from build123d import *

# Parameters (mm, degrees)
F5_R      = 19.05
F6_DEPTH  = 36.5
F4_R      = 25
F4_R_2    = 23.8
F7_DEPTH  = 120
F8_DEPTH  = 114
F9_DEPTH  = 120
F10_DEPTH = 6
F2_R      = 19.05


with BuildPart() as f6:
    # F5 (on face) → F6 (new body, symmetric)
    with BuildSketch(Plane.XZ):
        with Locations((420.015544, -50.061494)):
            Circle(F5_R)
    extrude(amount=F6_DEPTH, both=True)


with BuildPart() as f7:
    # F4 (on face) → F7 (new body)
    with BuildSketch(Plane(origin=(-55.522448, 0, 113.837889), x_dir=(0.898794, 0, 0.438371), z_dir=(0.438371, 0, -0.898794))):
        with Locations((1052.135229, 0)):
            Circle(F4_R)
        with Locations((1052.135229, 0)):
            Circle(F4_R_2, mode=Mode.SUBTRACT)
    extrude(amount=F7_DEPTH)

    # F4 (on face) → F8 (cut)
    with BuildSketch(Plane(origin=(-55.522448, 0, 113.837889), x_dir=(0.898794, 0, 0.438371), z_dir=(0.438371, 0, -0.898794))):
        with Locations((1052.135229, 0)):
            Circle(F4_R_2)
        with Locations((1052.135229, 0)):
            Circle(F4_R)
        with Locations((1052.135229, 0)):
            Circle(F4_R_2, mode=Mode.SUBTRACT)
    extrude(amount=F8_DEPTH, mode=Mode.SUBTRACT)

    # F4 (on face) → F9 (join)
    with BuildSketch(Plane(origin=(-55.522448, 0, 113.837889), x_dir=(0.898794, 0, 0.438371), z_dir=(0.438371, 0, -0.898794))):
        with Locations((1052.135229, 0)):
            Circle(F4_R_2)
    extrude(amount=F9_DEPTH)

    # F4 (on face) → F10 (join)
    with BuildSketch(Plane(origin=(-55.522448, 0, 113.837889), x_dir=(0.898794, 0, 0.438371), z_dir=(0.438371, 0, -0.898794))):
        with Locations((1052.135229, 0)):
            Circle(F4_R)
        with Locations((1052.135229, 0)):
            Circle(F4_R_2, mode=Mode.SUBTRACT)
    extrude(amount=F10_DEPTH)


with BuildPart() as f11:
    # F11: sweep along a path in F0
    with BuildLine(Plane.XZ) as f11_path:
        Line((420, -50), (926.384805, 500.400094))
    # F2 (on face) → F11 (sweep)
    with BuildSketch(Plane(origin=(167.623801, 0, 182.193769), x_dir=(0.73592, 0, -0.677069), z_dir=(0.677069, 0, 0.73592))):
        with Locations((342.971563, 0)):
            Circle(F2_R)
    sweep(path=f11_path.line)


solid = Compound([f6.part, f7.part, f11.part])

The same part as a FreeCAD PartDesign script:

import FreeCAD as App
import Part
import Sketcher
Q = App.Units.Quantity

doc = App.newDocument("Part")
body = doc.addObject("PartDesign::Body", "Body")

# Sketch on XZ plane
sketch1 = body.newObject("Sketcher::SketchObject", "Sketch")
sketch1.AttachmentSupport = (doc.getObject("XZ_Plane"), [""])
sketch1.MapMode = "FlatFace"
sketch1.addGeometry(Part.Circle(App.Vector(420, -50, 0), App.Vector(0, 0, 1), 19), False)
sketch1.addConstraint([
    Sketcher.Constraint("Diameter", 0, Q("38.1 mm")),
    Sketcher.Constraint("DistanceX", -1, 1, 0, 3, Q("420.015544 mm")),
    Sketcher.Constraint("DistanceY", 0, 3, -1, 1, Q("50.061494 mm")),
])
pad1 = body.newObject("PartDesign::Pad", "Pad")
pad1.Profile = sketch1
pad1.Length = 73
pad1.Midplane = True
body2 = doc.addObject("PartDesign::Body", "Body001")

# Sketch on an angled plane
sketch2 = body2.newObject("Sketcher::SketchObject", "Sketch001")
sketch2.Placement = App.Placement(App.Vector(-55.522448, 0, 113.837889), App.Rotation(App.Vector(0.898794095, 0, 0.438371046), App.Vector(0, -0.999999999, 0), App.Vector(0.438371046, 0, -0.898794095), "ZXY"))
sketch2.addGeometry([
    Part.Circle(App.Vector(1052, 0, 0), App.Vector(0, 0, 1), 25),
    Part.Circle(App.Vector(1052, 0, 0), App.Vector(0, 0, 1), 24),
], False)
sketch2.addConstraint([
    Sketcher.Constraint("Coincident", 1, 3, 0, 3),
    Sketcher.Constraint("PointOnObject", 0, 3, -1),
    Sketcher.Constraint("Diameter", 0, Q("50 mm")),
    Sketcher.Constraint("Diameter", 1, Q("47.6 mm")),
    Sketcher.Constraint("DistanceX", -1, 1, 0, 3, Q("1052.135228 mm")),
])
pad2 = body2.newObject("PartDesign::Pad", "Pad001")
pad2.Profile = sketch2
pad2.Length = 120

# Sketch on an angled plane
sketch3 = body2.newObject("Sketcher::SketchObject", "Sketch002")
sketch3.Placement = App.Placement(App.Vector(-55.522448, 0, 113.837889), App.Rotation(App.Vector(0.898794095, 0, 0.438371046), App.Vector(0, -0.999999999, 0), App.Vector(0.438371046, 0, -0.898794095), "ZXY"))
sketch3.addGeometry([
    Part.Circle(App.Vector(1052, 0, 0), App.Vector(0, 0, 1), 25),
    Part.Circle(App.Vector(1052, 0, 0), App.Vector(0, 0, 1), 24),
], False)
sketch3.addConstraint([
    Sketcher.Constraint("Coincident", 1, 3, 0, 3),
    Sketcher.Constraint("PointOnObject", 0, 3, -1),
    Sketcher.Constraint("Diameter", 0, Q("50 mm")),
    Sketcher.Constraint("Diameter", 1, Q("47.6 mm")),
    Sketcher.Constraint("DistanceX", -1, 1, 0, 3, Q("1052.135228 mm")),
])
pocket1 = body2.newObject("PartDesign::Pocket", "Pocket")
pocket1.Profile = sketch3
pocket1.Length = 114
pocket1.Reversed = True

# Sketch on an angled plane
sketch4 = body2.newObject("Sketcher::SketchObject", "Sketch003")
sketch4.Placement = App.Placement(App.Vector(-55.522448, 0, 113.837889), App.Rotation(App.Vector(0.898794095, 0, 0.438371046), App.Vector(0, -0.999999999, 0), App.Vector(0.438371046, 0, -0.898794095), "ZXY"))
sketch4.addGeometry(Part.Circle(App.Vector(1052, 0, 0), App.Vector(0, 0, 1), 24), False)
sketch4.addConstraint([
    Sketcher.Constraint("PointOnObject", 0, 3, -1),
    Sketcher.Constraint("Diameter", 0, Q("47.6 mm")),
    Sketcher.Constraint("DistanceX", -1, 1, 0, 3, Q("1052.135228 mm")),
])
pad3 = body2.newObject("PartDesign::Pad", "Pad002")
pad3.Profile = sketch4
pad3.Length = 120

# Sketch on an angled plane
sketch5 = body2.newObject("Sketcher::SketchObject", "Sketch004")
sketch5.Placement = App.Placement(App.Vector(-55.522448, 0, 113.837889), App.Rotation(App.Vector(0.898794095, 0, 0.438371046), App.Vector(0, -0.999999999, 0), App.Vector(0.438371046, 0, -0.898794095), "ZXY"))
sketch5.addGeometry([
    Part.Circle(App.Vector(1052, 0, 0), App.Vector(0, 0, 1), 25),
    Part.Circle(App.Vector(1052, 0, 0), App.Vector(0, 0, 1), 24),
], False)
sketch5.addConstraint([
    Sketcher.Constraint("Coincident", 1, 3, 0, 3),
    Sketcher.Constraint("PointOnObject", 0, 3, -1),
    Sketcher.Constraint("Diameter", 0, Q("50 mm")),
    Sketcher.Constraint("Diameter", 1, Q("47.6 mm")),
    Sketcher.Constraint("DistanceX", -1, 1, 0, 3, Q("1052.135228 mm")),
])
pad4 = body2.newObject("PartDesign::Pad", "Pad003")
pad4.Profile = sketch5
pad4.Length = 6
body3 = doc.addObject("PartDesign::Body", "Body002")

# Sketch on an angled plane
sketch6 = body3.newObject("Sketcher::SketchObject", "Sketch005")
sketch6.Placement = App.Placement(App.Vector(167.623801, 0, 182.193769), App.Rotation(App.Vector(0.735919751, 0, -0.677068771), App.Vector(0, 1.000000001, 0), App.Vector(0.677068771, 0, 0.735919751), "ZXY"))
sketch6.addGeometry(Part.Circle(App.Vector(343, 0, 0), App.Vector(0, 0, 1), 19), False)
sketch6.addConstraint([
    Sketcher.Constraint("PointOnObject", 0, 3, -1),
    Sketcher.Constraint("Diameter", 0, Q("38.1 mm")),
    Sketcher.Constraint("DistanceX", -1, 1, 0, 3, Q("342.971563 mm")),
])

# Sketch on an angled plane
sketch7 = body3.newObject("Sketcher::SketchObject", "Sketch006")
sketch7.Placement = App.Placement(App.Vector(252.376199, 0, -232.193769), App.Rotation(App.Vector(0.677068637, 0, 0.735919874), App.Vector(0, 1, 0), App.Vector(-0.735919874, 0, 0.677068637), "ZXY"))
sketch7.addGeometry(Part.LineSegment(App.Vector(248, 0, 0), App.Vector(995, 0, 0)), False)
sketch7.addConstraint([
    Sketcher.Constraint("Horizontal", 0),
    Sketcher.Constraint("PointOnObject", 0, 1, -1),
    Sketcher.Constraint("DistanceX", 0, 1, 0, 2, Q("747.907638 mm")),
    Sketcher.Constraint("DistanceX", -1, 1, 0, 2, Q("995.480472 mm")),
])
doc.recompute()

additivepipe = body3.newObject("PartDesign::AdditivePipe", "AdditivePipe")
additivepipe.Profile = sketch6
additivepipe.Spine = (sketch7, ["Edge1"])

doc.recompute()
